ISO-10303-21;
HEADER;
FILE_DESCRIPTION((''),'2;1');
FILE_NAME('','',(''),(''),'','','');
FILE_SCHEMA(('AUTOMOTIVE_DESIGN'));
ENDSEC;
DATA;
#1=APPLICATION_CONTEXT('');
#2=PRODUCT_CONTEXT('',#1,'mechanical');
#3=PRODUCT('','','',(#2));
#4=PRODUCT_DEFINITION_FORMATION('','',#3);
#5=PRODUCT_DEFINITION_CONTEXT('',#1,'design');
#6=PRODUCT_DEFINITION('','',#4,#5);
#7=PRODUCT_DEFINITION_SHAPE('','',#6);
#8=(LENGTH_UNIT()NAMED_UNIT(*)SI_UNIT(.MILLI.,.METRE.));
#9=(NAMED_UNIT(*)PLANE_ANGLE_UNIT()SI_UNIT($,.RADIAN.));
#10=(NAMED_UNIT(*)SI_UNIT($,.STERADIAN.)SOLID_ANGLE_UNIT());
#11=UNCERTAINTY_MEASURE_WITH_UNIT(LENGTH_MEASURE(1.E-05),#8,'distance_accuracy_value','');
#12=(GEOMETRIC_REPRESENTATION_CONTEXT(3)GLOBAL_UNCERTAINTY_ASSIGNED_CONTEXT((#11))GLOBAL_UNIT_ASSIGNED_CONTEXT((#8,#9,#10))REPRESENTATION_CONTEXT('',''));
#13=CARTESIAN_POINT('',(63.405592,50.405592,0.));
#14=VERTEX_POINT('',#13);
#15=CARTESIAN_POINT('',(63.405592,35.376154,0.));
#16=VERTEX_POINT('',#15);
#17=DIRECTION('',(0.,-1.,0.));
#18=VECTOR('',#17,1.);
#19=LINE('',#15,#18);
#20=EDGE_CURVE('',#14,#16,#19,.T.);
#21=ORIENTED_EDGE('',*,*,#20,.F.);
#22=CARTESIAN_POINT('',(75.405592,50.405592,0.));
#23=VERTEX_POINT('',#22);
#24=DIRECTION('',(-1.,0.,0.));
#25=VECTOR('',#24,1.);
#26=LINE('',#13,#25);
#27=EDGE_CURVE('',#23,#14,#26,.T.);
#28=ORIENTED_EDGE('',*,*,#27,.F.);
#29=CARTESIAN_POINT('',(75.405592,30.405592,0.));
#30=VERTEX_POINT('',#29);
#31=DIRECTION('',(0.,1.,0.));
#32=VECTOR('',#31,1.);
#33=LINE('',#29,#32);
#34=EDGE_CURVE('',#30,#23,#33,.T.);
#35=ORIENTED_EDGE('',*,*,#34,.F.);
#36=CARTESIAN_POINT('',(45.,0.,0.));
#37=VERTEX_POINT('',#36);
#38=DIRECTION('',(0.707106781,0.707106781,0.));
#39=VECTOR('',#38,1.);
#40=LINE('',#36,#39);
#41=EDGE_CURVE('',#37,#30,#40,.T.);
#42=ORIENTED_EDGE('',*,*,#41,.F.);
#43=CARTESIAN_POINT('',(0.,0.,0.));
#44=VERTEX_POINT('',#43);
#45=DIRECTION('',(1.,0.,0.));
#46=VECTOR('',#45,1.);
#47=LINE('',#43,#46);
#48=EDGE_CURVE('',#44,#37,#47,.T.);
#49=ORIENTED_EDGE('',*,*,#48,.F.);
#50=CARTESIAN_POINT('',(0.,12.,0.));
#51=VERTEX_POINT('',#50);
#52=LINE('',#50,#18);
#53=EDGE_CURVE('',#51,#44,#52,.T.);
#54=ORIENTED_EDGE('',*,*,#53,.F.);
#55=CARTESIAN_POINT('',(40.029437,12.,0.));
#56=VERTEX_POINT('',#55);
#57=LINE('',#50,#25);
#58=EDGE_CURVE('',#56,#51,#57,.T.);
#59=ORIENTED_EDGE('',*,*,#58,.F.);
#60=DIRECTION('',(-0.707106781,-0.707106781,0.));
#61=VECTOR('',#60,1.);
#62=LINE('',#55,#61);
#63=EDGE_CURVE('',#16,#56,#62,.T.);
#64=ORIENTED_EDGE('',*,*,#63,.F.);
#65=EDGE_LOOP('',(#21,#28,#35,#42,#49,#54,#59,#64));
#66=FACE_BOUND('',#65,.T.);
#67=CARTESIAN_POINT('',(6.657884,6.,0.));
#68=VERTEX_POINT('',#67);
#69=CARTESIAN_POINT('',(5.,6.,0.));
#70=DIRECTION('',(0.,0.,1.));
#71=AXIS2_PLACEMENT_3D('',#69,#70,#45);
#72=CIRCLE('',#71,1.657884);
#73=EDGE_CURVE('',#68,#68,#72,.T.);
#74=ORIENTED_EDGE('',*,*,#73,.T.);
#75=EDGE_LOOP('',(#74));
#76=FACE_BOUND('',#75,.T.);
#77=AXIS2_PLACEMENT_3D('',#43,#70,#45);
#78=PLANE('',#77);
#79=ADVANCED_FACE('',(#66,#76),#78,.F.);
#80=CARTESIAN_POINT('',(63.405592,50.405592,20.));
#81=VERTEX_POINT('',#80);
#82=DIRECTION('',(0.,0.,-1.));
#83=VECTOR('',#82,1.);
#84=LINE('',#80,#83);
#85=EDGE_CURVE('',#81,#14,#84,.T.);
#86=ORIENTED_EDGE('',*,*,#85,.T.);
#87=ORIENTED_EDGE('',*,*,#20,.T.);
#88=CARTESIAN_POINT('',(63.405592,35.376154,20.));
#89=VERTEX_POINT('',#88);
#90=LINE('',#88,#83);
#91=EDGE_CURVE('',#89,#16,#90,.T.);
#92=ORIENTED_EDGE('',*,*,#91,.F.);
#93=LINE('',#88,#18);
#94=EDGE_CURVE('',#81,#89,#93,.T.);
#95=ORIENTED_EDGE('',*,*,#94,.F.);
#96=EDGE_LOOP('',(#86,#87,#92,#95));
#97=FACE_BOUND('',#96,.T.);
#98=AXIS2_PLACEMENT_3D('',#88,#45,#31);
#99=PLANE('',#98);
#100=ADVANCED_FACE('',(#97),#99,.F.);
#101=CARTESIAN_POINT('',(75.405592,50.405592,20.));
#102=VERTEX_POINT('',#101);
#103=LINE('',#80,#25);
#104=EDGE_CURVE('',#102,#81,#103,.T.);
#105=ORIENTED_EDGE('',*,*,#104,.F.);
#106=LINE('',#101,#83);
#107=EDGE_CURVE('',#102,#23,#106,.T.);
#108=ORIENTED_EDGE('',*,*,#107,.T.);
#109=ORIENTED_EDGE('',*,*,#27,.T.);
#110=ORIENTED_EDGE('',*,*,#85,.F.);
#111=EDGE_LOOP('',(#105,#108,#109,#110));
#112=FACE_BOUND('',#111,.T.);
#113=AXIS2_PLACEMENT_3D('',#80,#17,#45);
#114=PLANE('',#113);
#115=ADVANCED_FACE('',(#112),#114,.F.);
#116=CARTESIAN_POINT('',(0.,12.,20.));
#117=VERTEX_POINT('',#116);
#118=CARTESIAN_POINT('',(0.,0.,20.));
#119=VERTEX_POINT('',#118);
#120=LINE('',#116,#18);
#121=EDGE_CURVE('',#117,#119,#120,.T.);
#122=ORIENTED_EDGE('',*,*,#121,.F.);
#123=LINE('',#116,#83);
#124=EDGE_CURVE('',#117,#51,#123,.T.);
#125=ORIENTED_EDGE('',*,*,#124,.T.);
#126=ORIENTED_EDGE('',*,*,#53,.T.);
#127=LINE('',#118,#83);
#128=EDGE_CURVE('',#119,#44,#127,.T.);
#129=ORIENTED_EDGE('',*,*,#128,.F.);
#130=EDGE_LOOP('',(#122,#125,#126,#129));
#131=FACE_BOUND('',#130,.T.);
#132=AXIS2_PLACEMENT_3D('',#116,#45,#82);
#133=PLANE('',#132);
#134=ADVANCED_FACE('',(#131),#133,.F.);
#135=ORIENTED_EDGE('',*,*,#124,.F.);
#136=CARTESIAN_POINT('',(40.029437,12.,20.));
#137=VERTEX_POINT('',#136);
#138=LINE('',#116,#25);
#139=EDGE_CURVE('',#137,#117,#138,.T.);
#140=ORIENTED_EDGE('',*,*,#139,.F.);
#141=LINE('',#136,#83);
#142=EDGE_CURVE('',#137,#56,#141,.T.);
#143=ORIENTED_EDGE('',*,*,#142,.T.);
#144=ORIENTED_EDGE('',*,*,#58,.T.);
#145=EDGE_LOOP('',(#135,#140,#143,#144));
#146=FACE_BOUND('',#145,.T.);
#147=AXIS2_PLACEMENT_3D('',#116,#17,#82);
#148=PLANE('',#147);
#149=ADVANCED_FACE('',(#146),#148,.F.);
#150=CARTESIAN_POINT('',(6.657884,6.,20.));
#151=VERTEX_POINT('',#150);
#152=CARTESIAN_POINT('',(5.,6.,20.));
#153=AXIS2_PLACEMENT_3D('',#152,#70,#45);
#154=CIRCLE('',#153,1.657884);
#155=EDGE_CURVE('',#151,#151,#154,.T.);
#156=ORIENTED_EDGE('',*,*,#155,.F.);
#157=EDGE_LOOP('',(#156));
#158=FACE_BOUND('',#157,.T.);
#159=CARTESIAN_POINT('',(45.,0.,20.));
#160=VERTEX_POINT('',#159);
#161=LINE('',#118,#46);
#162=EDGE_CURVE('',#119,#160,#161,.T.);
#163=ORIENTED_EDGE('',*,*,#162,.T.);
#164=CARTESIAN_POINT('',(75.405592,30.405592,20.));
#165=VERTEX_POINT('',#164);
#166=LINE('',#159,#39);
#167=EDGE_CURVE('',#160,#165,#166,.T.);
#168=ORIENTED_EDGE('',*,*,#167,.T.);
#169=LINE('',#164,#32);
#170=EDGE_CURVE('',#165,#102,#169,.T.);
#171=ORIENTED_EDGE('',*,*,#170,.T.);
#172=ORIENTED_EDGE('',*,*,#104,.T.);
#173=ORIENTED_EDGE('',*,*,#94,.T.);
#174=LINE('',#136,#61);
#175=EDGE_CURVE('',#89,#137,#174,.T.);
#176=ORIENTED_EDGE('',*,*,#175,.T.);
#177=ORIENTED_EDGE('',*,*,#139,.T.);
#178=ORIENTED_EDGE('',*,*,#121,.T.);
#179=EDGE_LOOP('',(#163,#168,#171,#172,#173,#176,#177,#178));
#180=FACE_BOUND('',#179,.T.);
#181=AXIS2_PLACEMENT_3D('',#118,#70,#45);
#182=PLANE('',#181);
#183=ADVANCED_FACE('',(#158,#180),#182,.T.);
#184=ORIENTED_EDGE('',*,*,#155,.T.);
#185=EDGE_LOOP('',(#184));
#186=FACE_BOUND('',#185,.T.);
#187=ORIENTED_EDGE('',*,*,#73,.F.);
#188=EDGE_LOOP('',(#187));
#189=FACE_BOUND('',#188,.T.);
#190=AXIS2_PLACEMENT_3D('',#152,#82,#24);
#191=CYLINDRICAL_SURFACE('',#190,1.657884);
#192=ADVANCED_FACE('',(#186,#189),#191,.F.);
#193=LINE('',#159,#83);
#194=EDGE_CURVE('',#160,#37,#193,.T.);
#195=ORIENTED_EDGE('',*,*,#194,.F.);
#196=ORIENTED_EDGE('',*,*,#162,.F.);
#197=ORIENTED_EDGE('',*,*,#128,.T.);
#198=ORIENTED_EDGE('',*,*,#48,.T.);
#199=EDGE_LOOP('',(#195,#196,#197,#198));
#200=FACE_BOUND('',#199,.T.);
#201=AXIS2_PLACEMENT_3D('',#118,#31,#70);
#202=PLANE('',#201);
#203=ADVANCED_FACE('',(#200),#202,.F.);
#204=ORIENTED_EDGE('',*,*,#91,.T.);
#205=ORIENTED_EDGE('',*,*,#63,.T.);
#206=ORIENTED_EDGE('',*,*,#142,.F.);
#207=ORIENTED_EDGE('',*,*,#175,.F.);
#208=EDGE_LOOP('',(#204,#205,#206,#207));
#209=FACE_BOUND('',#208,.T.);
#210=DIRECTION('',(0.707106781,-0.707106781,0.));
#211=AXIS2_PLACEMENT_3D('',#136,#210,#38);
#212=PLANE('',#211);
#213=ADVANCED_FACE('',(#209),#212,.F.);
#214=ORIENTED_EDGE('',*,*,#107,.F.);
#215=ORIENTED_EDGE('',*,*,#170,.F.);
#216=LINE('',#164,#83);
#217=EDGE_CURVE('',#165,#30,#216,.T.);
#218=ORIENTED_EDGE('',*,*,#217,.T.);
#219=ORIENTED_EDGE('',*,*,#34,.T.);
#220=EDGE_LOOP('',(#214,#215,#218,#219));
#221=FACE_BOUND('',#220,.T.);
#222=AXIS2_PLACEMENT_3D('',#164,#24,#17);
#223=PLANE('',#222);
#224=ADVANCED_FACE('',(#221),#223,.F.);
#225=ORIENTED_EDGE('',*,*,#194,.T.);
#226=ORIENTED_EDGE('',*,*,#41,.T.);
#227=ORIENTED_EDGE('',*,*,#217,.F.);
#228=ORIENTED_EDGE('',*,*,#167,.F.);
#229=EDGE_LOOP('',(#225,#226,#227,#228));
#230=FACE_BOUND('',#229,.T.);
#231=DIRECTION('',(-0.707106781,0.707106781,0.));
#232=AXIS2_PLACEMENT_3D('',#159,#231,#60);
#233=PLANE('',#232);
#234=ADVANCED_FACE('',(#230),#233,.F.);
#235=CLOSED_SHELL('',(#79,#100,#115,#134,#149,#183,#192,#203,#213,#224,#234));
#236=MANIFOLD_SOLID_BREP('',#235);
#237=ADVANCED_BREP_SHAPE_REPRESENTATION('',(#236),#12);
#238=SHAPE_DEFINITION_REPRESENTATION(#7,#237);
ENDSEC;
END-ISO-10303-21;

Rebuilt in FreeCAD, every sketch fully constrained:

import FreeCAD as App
import Part
import Sketcher
Q = App.Units.Quantity

doc = App.newDocument("Part")
body = doc.addObject("PartDesign::Body", "Body")

# Sketch on XY plane
sketch1 = body.newObject("Sketcher::SketchObject", "Sketch")
sketch1.AttachmentSupport = (doc.getObject("XY_Plane"), [""])
sketch1.MapMode = "FlatFace"
sketch1.addGeometry([
    Part.LineSegment(App.Vector(0, 0, 0), App.Vector(45, 0, 0)),  # 0
    Part.LineSegment(App.Vector(45, 0, 0), App.Vector(75.405592, 30.405592, 0)),  # 1
    Part.LineSegment(App.Vector(75.405592, 30.405592, 0), App.Vector(75.405592, 50.405592, 0)),  # 2
    Part.LineSegment(App.Vector(75.405592, 50.405592, 0), App.Vector(63.405592, 50.405592, 0)),  # 3
    Part.LineSegment(App.Vector(63.405592, 50.405592, 0), App.Vector(63.405592, 35.376154, 0)),  # 4
    Part.LineSegment(App.Vector(63.405592, 35.376154, 0), App.Vector(40.029437, 12, 0)),  # 5
    Part.LineSegment(App.Vector(40.029437, 12, 0), App.Vector(0, 12, 0)),  # 6
    Part.LineSegment(App.Vector(0, 12, 0), App.Vector(0, 0, 0)),  # 7
    Part.Circle(App.Vector(5, 6, 0), App.Vector(0, 0, 1), 1.657884),  # 8
], False)
sketch1.addConstraint([
    Sketcher.Constraint("Coincident", 0, 2, 1, 1),
    Sketcher.Constraint("Coincident", 1, 2, 2, 1),
    Sketcher.Constraint("Coincident", 2, 2, 3, 1),
    Sketcher.Constraint("Coincident", 3, 2, 4, 1),
    Sketcher.Constraint("Coincident", 4, 2, 5, 1),
    Sketcher.Constraint("Coincident", 5, 2, 6, 1),
    Sketcher.Constraint("Coincident", 6, 2, 7, 1),
    Sketcher.Constraint("Coincident", 7, 2, 0, 1),
    Sketcher.Constraint("Horizontal", 0),
    Sketcher.Constraint("Vertical", 2),
    Sketcher.Constraint("Horizontal", 3),
    Sketcher.Constraint("Vertical", 4),
    Sketcher.Constraint("Horizontal", 6),
    Sketcher.Constraint("Vertical", 7),
    Sketcher.Constraint("Coincident", 7, 2, -1, 1),
    Sketcher.Constraint("Parallel", 1, 5),
    Sketcher.Constraint("Equal", 3, 7),
    Sketcher.Constraint("DistanceX", 0, 1, 0, 2, Q("45 mm")),
    Sketcher.Constraint("DistanceX", 3, 2, 3, 1, Q("12 mm")),
    Sketcher.Constraint("DistanceY", 2, 1, 2, 2, Q("20 mm")),
    Sketcher.Constraint("Angle", 1, Q("45 deg")),
    Sketcher.Constraint("Distance", 1, Q("43 mm")),
    Sketcher.Constraint("DistanceX", -1, 1, 8, 3, Q("5 mm")),
    Sketcher.Constraint("DistanceY", -1, 1, 8, 3, Q("6 mm")),
    Sketcher.Constraint("Diameter", 8, Q("3.315769 mm")),
    Sketcher.Constraint("DistanceX", 6, 2, 6, 1, Q("40.029437 mm")),
])
pad1 = body.newObject("PartDesign::Pad", "Pad")
pad1.Profile = sketch1
pad1.Length = 20

doc.recompute()
